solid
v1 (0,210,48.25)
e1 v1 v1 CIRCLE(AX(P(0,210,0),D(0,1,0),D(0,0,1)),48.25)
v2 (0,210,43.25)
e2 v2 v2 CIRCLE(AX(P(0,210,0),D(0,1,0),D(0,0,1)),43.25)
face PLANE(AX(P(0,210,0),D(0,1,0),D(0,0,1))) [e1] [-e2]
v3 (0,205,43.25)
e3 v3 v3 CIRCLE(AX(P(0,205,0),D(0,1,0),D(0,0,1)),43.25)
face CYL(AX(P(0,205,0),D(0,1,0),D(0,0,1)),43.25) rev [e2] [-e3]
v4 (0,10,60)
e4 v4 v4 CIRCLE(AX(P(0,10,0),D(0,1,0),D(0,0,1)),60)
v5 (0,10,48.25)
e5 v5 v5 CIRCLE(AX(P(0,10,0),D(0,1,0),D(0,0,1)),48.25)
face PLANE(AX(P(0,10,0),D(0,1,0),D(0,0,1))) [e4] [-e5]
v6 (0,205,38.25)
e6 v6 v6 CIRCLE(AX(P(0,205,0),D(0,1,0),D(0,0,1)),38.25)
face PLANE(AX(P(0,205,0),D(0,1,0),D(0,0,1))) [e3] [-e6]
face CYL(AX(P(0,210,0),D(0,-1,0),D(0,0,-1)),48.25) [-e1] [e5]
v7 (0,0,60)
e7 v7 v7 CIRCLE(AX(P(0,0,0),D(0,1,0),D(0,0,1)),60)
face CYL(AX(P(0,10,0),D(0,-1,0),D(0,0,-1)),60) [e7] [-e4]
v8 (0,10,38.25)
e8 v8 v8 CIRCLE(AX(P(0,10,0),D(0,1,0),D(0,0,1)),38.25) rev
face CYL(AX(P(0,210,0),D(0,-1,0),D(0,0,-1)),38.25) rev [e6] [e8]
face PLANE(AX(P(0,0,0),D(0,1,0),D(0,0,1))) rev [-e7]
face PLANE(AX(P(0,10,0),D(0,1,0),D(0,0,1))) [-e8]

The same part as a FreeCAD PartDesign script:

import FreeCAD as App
import Part
import Sketcher

doc = App.newDocument("Part")
params = doc.addObject("Spreadsheet::Sheet", "Params")
for row, (alias, value) in enumerate([
    ("sketch1_diameter", "120 mm"),
    ("pad1_length", "10 mm"),
    ("sketch2_diameter", "96.5 mm"),
    ("sketch2_diameter2", "76.5 mm"),
    ("pad2_length", "200 mm"),
    ("sketch3_diameter", "86.5 mm"),
    ("pocket1_length", "5 mm"),
], start=1):
    params.set(f"A{row}", alias)
    params.set(f"B{row}", "=" + value)
    params.setAlias(f"B{row}", alias)

body = doc.addObject("PartDesign::Body", "Body")

# Sketch on XZ plane
sketch1 = body.newObject("Sketcher::SketchObject", "Sketch")
sketch1.AttachmentSupport = (doc.getObject("XZ_Plane"), [""])
sketch1.MapMode = "FlatFace"
sketch1.addGeometry(Part.Circle(App.Vector(0, 0, 0), App.Vector(0, 0, 1), 60), False)
sketch1.addConstraint([
    Sketcher.Constraint("Coincident", 0, 3, -1, 1),
    Sketcher.Constraint("Diameter", 0, 120.0),
])
sketch1.setExpression("Constraints[1]", "Params.sketch1_diameter")
pad1 = body.newObject("PartDesign::Pad", "Pad")
pad1.Profile = sketch1
pad1.setExpression("Length", "Params.pad1_length")
pad1.Reversed = True

# Sketch on XZ plane
sketch2 = body.newObject("Sketcher::SketchObject", "Sketch001")
sketch2.AttachmentSupport = (doc.getObject("XZ_Plane"), [""])
sketch2.MapMode = "FlatFace"
sketch2.AttachmentOffset = App.Placement(App.Vector(0, 0, -10), App.Rotation())
sketch2.addGeometry([
    Part.Circle(App.Vector(0, 0, 0), App.Vector(0, 0, 1), 48.25),
    Part.Circle(App.Vector(0, 0, 0), App.Vector(0, 0, 1), 38.25),
], False)
sketch2.addConstraint([
    Sketcher.Constraint("Coincident", 0, 3, -1, 1),
    Sketcher.Constraint("Coincident", 1, 3, -1, 1),
    Sketcher.Constraint("Diameter", 0, 96.5),
    Sketcher.Constraint("Diameter", 1, 76.5),
])
sketch2.setExpression("Constraints[2]", "Params.sketch2_diameter")
sketch2.setExpression("Constraints[3]", "Params.sketch2_diameter2")
pad2 = body.newObject("PartDesign::Pad", "Pad001")
pad2.Profile = sketch2
pad2.setExpression("Length", "Params.pad2_length")
pad2.Reversed = True

# Sketch on XZ plane
sketch3 = body.newObject("Sketcher::SketchObject", "Sketch002")
sketch3.AttachmentSupport = (doc.getObject("XZ_Plane"), [""])
sketch3.MapMode = "FlatFace"
sketch3.AttachmentOffset = App.Placement(App.Vector(0, 0, -210), App.Rotation())
sketch3.addGeometry(Part.Circle(App.Vector(0, 0, 0), App.Vector(0, 0, 1), 43.25), False)
sketch3.addConstraint([
    Sketcher.Constraint("Coincident", 0, 3, -1, 1),
    Sketcher.Constraint("Diameter", 0, 86.5),
])
sketch3.setExpression("Constraints[1]", "Params.sketch3_diameter")
pocket1 = body.newObject("PartDesign::Pocket", "Pocket")
pocket1.Profile = sketch3
pocket1.setExpression("Length", "Params.pocket1_length")
pocket1.Reversed = True

doc.recompute()
